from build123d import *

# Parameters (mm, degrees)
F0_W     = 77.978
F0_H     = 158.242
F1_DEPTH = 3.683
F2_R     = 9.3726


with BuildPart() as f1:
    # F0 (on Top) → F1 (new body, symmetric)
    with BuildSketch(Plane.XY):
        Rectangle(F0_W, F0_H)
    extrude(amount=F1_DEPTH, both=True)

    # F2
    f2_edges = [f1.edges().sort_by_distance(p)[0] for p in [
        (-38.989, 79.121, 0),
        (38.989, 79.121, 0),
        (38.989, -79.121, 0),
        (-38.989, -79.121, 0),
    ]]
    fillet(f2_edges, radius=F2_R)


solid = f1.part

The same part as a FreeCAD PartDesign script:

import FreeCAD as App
import Part
import Sketcher
from FreeCAD import Vector
Q = App.Units.Quantity


def edges_at(feature, points):
    """Names of the edges that pass closest to the given points."""
    edges = feature.Shape.Edges
    near = lambda p: min(range(len(edges)), key=lambda i: edges[i].distToShape(Part.Vertex(*p))[0])
    return sorted({f"Edge{near(p) + 1}" for p in points})


def add_polygon(sketch, points):
    """Adds a closed chain of lines whose ends are joined by coincident constraints."""
    first, n = sketch.GeometryCount, len(points)
    for a, b in zip(points, points[1:] + points[:1]):
        sketch.addGeometry(Part.LineSegment(App.Vector(*a, 0), App.Vector(*b, 0)), False)
    for i in range(n):
        sketch.addConstraint(Sketcher.Constraint("Coincident", first + i, 2, first + (i + 1) % n, 1))

doc = App.newDocument("Part")
params = doc.addObject("Spreadsheet::Sheet", "Params")
for row, (alias, value) in enumerate([
    ("sketch1_width", "3.07 in"),
    ("sketch1_height", "6.23 in"),
    ("pad1_length", "0.29 in"),
    ("fillet_radius", "0.369 in"),
], start=1):
    params.set(f"A{row}", alias)
    params.set(f"B{row}", "=" + value)
    params.setAlias(f"B{row}", alias)

body = doc.addObject("PartDesign::Body", "Body")

sketch1 = body.newObject("Sketcher::SketchObject", "Sketch")
sketch1.AttachmentSupport = (doc.getObject("XY_Plane"), [""])
sketch1.MapMode = "FlatFace"
add_polygon(sketch1, [(-39, 79), (-39, -79), (39, -79), (39, 79)])
sketch1.addConstraint([
    Sketcher.Constraint("Vertical", 0),
    Sketcher.Constraint("Horizontal", 1),
    Sketcher.Constraint("Vertical", 2),
    Sketcher.Constraint("Horizontal", 3),
    Sketcher.Constraint("Symmetric", 0, 2, 2, 2, -1, 1),
    Sketcher.Constraint("DistanceX", 1, 1, 1, 2, Q("3.07 in")),
    Sketcher.Constraint("DistanceY", 0, 2, 0, 1, Q("6.23 in")),
])
sketch1.setExpression("Constraints[9]", "Params.sketch1_width")
sketch1.setExpression("Constraints[10]", "Params.sketch1_height")
pad1 = body.newObject("PartDesign::Pad", "Pad")
pad1.Profile = sketch1
pad1.setExpression("Length", "Params.pad1_length")
pad1.Midplane = True
doc.recompute()

fillet = body.newObject("PartDesign::Fillet", "Fillet")
fillet.Base = (pad1, edges_at(pad1, [
    (-38.989, 79.121, 0),
    (38.989, 79.121, 0),
    (38.989, -79.121, 0),
    (-38.989, -79.121, 0),
]))
fillet.setExpression("Radius", "Params.fillet_radius")

doc.recompute()
